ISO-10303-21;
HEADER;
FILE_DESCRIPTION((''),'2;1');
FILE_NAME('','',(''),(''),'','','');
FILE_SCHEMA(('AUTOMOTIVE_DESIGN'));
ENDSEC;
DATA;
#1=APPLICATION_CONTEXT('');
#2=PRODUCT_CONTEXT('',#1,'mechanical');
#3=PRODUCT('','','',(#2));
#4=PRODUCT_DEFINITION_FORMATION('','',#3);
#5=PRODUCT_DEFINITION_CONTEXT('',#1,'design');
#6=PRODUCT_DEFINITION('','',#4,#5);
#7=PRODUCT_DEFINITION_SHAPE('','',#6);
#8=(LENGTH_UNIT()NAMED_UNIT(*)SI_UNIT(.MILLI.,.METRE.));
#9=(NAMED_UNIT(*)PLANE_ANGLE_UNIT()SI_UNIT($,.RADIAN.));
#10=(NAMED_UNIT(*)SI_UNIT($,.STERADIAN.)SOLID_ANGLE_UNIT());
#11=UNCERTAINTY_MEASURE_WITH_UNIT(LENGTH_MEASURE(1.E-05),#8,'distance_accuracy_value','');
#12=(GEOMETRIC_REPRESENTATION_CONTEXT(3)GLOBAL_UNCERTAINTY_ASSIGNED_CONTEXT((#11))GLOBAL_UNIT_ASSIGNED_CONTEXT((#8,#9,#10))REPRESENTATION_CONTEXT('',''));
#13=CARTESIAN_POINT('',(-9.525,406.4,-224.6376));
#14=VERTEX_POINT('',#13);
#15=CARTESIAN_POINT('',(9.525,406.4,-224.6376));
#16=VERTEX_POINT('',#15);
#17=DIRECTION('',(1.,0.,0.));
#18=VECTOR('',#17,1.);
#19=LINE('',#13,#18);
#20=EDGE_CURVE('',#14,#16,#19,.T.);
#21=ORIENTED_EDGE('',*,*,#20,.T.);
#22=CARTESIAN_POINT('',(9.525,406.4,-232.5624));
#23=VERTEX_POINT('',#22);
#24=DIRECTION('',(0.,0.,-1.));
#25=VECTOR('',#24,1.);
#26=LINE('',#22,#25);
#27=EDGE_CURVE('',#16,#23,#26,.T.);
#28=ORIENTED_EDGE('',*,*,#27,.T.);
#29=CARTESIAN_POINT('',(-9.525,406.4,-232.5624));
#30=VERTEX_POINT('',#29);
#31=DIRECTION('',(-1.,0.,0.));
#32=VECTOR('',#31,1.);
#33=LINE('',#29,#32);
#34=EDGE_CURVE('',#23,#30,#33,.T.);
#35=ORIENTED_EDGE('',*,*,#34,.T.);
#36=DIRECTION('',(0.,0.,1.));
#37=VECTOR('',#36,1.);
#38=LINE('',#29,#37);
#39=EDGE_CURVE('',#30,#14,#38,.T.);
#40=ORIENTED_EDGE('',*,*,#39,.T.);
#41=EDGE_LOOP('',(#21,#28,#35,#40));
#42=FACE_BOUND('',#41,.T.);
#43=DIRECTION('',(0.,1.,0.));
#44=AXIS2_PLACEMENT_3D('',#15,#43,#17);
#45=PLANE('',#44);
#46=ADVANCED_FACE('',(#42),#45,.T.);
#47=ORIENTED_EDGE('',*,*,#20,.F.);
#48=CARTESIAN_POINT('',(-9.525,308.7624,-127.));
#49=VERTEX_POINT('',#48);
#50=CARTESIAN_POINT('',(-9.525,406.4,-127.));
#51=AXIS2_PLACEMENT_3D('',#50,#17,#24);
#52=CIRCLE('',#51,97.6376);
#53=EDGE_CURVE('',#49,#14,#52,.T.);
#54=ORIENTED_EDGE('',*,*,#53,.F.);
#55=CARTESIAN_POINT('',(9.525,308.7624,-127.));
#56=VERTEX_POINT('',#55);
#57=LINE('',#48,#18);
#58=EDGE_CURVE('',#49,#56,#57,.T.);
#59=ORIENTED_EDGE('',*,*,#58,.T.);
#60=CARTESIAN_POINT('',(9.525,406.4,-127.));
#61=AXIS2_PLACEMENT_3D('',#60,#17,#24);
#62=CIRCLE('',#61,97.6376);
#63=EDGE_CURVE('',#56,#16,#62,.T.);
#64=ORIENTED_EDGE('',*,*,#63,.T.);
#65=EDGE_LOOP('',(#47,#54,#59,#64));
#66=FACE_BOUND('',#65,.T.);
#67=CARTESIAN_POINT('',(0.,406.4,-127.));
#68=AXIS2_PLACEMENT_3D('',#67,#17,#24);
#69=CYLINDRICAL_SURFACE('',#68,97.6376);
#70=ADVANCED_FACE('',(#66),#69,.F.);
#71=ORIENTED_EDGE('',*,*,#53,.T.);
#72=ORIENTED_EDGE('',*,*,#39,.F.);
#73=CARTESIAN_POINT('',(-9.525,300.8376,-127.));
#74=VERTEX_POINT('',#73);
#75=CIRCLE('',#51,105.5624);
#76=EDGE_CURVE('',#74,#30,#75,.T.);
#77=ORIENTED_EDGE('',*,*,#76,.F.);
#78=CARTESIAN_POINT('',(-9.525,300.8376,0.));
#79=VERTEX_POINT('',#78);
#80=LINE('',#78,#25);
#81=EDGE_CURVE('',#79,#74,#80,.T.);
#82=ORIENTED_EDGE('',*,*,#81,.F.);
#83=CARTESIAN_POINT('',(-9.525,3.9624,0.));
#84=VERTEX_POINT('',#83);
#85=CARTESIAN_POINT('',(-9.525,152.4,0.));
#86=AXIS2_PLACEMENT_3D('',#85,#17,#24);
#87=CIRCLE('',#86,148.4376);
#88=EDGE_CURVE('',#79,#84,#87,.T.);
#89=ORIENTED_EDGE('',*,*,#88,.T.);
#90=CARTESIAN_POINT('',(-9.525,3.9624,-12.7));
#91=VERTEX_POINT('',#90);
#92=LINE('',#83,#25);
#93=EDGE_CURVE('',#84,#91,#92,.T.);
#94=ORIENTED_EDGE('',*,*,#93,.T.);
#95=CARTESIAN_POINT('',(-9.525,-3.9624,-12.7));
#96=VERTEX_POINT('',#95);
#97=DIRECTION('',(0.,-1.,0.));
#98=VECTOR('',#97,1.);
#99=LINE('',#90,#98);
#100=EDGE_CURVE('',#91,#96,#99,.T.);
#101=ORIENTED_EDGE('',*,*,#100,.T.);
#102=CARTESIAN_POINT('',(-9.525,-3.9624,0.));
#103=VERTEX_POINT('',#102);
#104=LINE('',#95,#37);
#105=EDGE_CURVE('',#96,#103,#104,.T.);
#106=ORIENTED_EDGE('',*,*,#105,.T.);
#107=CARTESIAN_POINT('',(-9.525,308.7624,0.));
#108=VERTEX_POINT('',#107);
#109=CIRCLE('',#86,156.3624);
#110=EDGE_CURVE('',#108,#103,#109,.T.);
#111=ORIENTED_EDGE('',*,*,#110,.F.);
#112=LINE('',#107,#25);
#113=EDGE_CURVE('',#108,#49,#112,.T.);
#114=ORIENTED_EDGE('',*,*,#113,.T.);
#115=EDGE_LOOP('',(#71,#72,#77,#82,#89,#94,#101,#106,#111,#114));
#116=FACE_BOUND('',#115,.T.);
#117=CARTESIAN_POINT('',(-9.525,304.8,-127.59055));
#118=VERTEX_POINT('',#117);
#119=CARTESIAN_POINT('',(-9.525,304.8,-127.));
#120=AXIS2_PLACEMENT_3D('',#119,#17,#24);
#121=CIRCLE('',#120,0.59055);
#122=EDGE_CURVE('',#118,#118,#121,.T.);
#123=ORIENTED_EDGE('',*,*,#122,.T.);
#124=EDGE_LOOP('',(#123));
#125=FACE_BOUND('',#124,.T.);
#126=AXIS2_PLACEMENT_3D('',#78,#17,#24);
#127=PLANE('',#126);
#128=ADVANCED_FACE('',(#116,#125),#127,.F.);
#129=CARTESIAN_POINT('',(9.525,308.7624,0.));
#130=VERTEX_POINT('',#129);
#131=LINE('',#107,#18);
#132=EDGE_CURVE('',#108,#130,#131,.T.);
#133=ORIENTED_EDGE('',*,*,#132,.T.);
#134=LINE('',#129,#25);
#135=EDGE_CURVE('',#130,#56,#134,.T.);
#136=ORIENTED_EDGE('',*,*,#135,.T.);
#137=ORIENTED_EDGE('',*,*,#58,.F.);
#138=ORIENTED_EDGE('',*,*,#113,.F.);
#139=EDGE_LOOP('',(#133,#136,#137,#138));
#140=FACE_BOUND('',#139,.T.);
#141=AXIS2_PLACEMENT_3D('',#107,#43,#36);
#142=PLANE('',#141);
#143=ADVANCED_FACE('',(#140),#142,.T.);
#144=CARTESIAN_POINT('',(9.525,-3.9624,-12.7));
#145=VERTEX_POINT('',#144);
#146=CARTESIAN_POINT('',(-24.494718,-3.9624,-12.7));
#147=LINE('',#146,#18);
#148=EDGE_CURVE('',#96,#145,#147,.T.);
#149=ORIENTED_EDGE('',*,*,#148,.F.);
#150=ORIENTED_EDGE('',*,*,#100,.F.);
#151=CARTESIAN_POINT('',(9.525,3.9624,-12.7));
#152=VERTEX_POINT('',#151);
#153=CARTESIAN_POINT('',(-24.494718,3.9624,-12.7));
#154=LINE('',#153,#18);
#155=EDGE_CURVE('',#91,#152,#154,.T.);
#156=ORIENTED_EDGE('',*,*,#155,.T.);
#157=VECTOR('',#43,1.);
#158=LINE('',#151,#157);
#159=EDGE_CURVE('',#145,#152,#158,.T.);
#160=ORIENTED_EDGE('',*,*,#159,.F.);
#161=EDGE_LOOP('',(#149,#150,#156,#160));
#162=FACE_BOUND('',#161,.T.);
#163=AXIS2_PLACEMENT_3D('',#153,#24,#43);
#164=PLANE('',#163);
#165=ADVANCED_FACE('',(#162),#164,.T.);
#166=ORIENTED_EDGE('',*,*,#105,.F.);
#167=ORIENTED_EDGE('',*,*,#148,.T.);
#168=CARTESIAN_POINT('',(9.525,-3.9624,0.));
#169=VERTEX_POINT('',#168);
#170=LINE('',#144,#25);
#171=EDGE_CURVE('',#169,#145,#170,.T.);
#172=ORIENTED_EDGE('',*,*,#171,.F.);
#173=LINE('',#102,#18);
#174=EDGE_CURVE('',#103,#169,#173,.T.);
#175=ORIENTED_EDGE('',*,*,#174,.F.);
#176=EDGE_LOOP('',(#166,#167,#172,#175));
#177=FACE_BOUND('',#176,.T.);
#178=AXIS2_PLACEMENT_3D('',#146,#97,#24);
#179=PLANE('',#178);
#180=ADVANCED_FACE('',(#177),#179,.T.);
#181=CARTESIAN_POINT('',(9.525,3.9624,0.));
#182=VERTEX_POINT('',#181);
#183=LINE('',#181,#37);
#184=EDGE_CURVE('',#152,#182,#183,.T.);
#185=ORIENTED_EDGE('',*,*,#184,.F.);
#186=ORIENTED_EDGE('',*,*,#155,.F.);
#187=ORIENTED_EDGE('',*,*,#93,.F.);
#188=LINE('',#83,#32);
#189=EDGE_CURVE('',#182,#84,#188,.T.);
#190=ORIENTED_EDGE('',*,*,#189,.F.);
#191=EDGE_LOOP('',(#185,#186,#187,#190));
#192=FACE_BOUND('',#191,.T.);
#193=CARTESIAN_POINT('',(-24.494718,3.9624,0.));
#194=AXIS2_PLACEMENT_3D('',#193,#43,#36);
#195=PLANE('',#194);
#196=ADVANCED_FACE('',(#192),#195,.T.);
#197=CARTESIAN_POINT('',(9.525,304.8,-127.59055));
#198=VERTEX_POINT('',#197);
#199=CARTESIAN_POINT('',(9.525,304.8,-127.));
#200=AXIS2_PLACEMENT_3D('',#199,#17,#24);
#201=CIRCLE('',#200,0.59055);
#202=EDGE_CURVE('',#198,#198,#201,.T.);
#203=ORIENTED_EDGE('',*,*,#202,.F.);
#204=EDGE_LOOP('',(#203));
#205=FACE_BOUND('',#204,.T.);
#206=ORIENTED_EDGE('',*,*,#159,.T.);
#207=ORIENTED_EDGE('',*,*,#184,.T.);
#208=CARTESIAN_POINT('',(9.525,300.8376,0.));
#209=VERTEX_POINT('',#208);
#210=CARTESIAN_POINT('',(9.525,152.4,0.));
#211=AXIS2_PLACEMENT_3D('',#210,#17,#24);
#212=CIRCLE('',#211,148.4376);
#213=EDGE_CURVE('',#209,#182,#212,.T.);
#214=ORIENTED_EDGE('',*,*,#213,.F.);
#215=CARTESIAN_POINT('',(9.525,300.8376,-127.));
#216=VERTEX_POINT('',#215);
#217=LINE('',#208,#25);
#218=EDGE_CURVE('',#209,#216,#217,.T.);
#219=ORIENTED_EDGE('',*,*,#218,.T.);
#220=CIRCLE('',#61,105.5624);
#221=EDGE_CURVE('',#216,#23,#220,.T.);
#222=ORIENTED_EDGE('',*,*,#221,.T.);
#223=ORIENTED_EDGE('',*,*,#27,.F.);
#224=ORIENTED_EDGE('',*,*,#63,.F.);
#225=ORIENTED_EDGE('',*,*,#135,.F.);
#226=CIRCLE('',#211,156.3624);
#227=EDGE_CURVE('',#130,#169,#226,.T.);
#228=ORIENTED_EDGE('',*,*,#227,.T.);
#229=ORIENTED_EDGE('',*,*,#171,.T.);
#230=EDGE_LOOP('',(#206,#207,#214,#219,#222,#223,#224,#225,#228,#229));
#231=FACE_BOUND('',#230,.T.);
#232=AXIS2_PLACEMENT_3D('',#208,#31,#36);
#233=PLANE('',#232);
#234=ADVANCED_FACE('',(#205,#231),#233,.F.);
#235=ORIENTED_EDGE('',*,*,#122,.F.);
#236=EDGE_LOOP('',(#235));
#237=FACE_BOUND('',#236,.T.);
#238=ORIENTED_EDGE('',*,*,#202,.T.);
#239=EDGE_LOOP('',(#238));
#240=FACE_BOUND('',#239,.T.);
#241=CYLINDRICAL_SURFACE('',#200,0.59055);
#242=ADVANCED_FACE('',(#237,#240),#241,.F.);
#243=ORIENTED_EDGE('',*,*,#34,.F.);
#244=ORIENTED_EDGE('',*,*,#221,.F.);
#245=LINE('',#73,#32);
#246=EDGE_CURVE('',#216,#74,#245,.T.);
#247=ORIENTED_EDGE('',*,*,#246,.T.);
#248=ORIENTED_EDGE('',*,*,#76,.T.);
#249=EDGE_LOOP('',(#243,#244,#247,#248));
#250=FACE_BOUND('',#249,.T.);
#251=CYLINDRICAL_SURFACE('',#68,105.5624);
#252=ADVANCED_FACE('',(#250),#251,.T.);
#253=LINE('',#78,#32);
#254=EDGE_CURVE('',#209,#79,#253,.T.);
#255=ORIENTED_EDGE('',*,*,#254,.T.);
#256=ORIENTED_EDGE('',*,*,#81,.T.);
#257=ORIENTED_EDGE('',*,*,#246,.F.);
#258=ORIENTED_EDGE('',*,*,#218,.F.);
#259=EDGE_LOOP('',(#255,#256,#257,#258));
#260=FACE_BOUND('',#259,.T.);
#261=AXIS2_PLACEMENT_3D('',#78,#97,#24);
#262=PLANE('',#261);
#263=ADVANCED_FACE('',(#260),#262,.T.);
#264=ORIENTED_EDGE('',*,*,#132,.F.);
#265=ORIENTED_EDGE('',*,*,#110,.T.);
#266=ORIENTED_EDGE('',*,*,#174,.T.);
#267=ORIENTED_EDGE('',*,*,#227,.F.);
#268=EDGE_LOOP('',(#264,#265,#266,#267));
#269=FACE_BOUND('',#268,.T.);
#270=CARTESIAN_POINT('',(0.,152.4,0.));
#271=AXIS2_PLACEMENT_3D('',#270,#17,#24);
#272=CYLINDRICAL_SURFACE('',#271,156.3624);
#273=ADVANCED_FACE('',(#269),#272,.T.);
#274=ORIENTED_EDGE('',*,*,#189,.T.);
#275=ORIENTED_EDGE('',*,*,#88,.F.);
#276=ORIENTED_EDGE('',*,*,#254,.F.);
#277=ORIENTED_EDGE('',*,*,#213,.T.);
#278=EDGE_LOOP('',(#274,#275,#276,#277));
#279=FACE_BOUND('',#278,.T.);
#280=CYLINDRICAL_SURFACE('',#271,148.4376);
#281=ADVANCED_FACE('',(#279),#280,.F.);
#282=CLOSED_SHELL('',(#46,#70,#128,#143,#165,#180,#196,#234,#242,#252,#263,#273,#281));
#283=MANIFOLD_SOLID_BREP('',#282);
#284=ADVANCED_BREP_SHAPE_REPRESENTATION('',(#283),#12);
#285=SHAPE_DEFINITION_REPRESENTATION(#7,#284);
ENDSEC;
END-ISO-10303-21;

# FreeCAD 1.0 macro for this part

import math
import FreeCAD as App
import Part
import Sketcher

V = App.Vector
Q = App.Units.Quantity


def add_polygon(sketch, points):
    """Adds a closed chain of lines whose ends are joined by coincident constraints."""
    first, n = sketch.GeometryCount, len(points)
    for a, b in zip(points, points[1:] + points[:1]):
        sketch.addGeometry(Part.LineSegment(App.Vector(*a, 0), App.Vector(*b, 0)), False)
    for i in range(n):
        sketch.addConstraint(Sketcher.Constraint("Coincident", first + i, 2, first + (i + 1) % n, 1))

doc = App.newDocument("Part")
body = doc.addObject("PartDesign::Body", "Body")

# Sketch on XY plane
sketch1 = body.newObject("Sketcher::SketchObject", "Sketch")
sketch1.AttachmentSupport = (doc.getObject("XY_Plane"), [""])
sketch1.MapMode = "FlatFace"
add_polygon(sketch1, [(-9.525, 3.9624), (-9.525, -3.9624), (9.525, -3.9624), (9.525, 3.9624)])  # lines 0-3
sketch1.addConstraint(Sketcher.Constraint("Vertical", 0))
sketch1.addConstraint(Sketcher.Constraint("Horizontal", 1))
sketch1.addConstraint(Sketcher.Constraint("Vertical", 2))
sketch1.addConstraint(Sketcher.Constraint("Horizontal", 3))
sketch1.addConstraint(Sketcher.Constraint("Symmetric", 0, 2, 2, 2, -1, 1))
sketch1.addConstraint(Sketcher.Constraint("DistanceX", 1, 1, 1, 2, Q("0.75 in")))
sketch1.addConstraint(Sketcher.Constraint("DistanceY", 0, 2, 0, 1, Q("0.312 in")))

# Sketch on YZ plane
sketch2 = body.newObject("Sketcher::SketchObject", "Sketch001")
sketch2.AttachmentSupport = (doc.getObject("YZ_Plane"), [""])
sketch2.MapMode = "FlatFace"
sketch2.addGeometry(Part.ArcOfCircle(Part.Circle(V(152.4, 0, 0), V(0, 0, 1), 152.4), math.radians(0), math.radians(180)), False)
sketch2.addGeometry(Part.LineSegment(V(304.8, 0, 0), V(304.8, -127, 0)), False)
sketch2.addGeometry(Part.ArcOfCircle(Part.Circle(V(406.4, -127, 0), V(0, 0, 1), 101.6), math.radians(180), math.radians(270)), False)
sketch2.addConstraint(Sketcher.Constraint("Tangent", 0, 1, 1, 1))
sketch2.addConstraint(Sketcher.Constraint("Tangent", 1, 2, 2, 1))
sketch2.addConstraint(Sketcher.Constraint("Vertical", 1))
sketch2.addConstraint(Sketcher.Constraint("Coincident", 0, 2, -1, 1))
sketch2.addConstraint(Sketcher.Constraint("PointOnObject", 0, 3, -1))
sketch2.addConstraint(Sketcher.Constraint("Radius", 0, Q("6 in")))
sketch2.addConstraint(Sketcher.Constraint("Radius", 2, Q("4 in")))
sketch2.addConstraint(Sketcher.Constraint("DistanceY", 1, 2, 1, 1, Q("5 in")))
sketch2.addConstraint(Sketcher.Constraint("DistanceX", -1, 1, 2, 2, Q("16 in")))
doc.recompute()

additivepipe = body.newObject("PartDesign::AdditivePipe", "AdditivePipe")
additivepipe.Profile = sketch1
additivepipe.Spine = (sketch2, ["Edge1", "Edge2", "Edge3"])

# Sketch on YZ plane
sketch3 = body.newObject("Sketcher::SketchObject", "Sketch002")
sketch3.AttachmentSupport = (doc.getObject("YZ_Plane"), [""])
sketch3.MapMode = "FlatFace"
sketch3.AttachmentOffset = App.Placement(V(0, 0, 0.375 * 25.4), App.Rotation())
add_polygon(sketch3, [(3.9624, 0), (-3.9624, 0), (-3.9624, -12.7), (3.9624, -12.7)])  # lines 0-3
sketch3.addConstraint(Sketcher.Constraint("Horizontal", 0))
sketch3.addConstraint(Sketcher.Constraint("Vertical", 1))
sketch3.addConstraint(Sketcher.Constraint("Horizontal", 2))
sketch3.addConstraint(Sketcher.Constraint("Vertical", 3))
sketch3.addConstraint(Sketcher.Constraint("Symmetric", 0, 2, 3, 2, -1, 1))
sketch3.addConstraint(Sketcher.Constraint("DistanceY", 1, 2, 1, 1, Q("0.5 in")))
sketch3.addConstraint(Sketcher.Constraint("DistanceX", 0, 2, 0, 1, Q("0.312 in")))
pad1 = body.newObject("PartDesign::Pad", "Pad")
pad1.Profile = sketch3
pad1.Length = Q("0.75 in")
pad1.Reversed = True

# Sketch on YZ plane
sketch4 = body.newObject("Sketcher::SketchObject", "Sketch003")
sketch4.AttachmentSupport = (doc.getObject("YZ_Plane"), [""])
sketch4.MapMode = "FlatFace"
sketch4.AttachmentOffset = App.Placement(V(0, 0, 0.375 * 25.4), App.Rotation())
sketch4.addGeometry(Part.Circle(V(304.8, -127, 0), V(0, 0, 1), 0.59055), False)
sketch4.addConstraint(Sketcher.Constraint("DistanceX", -1, 1, 0, 3, Q("12 in")))
sketch4.addConstraint(Sketcher.Constraint("DistanceY", 0, 3, -1, 1, Q("5 in")))
sketch4.addConstraint(Sketcher.Constraint("Diameter", 0, Q("0.0465 in")))
doc.recompute()
hole = body.newObject("PartDesign::Hole", "Hole")
hole.Profile = sketch4
hole.ThreadType = "None"
hole.Diameter = Q("0.0465 in")
hole.DepthType = "ThroughAll"

doc.recompute()
